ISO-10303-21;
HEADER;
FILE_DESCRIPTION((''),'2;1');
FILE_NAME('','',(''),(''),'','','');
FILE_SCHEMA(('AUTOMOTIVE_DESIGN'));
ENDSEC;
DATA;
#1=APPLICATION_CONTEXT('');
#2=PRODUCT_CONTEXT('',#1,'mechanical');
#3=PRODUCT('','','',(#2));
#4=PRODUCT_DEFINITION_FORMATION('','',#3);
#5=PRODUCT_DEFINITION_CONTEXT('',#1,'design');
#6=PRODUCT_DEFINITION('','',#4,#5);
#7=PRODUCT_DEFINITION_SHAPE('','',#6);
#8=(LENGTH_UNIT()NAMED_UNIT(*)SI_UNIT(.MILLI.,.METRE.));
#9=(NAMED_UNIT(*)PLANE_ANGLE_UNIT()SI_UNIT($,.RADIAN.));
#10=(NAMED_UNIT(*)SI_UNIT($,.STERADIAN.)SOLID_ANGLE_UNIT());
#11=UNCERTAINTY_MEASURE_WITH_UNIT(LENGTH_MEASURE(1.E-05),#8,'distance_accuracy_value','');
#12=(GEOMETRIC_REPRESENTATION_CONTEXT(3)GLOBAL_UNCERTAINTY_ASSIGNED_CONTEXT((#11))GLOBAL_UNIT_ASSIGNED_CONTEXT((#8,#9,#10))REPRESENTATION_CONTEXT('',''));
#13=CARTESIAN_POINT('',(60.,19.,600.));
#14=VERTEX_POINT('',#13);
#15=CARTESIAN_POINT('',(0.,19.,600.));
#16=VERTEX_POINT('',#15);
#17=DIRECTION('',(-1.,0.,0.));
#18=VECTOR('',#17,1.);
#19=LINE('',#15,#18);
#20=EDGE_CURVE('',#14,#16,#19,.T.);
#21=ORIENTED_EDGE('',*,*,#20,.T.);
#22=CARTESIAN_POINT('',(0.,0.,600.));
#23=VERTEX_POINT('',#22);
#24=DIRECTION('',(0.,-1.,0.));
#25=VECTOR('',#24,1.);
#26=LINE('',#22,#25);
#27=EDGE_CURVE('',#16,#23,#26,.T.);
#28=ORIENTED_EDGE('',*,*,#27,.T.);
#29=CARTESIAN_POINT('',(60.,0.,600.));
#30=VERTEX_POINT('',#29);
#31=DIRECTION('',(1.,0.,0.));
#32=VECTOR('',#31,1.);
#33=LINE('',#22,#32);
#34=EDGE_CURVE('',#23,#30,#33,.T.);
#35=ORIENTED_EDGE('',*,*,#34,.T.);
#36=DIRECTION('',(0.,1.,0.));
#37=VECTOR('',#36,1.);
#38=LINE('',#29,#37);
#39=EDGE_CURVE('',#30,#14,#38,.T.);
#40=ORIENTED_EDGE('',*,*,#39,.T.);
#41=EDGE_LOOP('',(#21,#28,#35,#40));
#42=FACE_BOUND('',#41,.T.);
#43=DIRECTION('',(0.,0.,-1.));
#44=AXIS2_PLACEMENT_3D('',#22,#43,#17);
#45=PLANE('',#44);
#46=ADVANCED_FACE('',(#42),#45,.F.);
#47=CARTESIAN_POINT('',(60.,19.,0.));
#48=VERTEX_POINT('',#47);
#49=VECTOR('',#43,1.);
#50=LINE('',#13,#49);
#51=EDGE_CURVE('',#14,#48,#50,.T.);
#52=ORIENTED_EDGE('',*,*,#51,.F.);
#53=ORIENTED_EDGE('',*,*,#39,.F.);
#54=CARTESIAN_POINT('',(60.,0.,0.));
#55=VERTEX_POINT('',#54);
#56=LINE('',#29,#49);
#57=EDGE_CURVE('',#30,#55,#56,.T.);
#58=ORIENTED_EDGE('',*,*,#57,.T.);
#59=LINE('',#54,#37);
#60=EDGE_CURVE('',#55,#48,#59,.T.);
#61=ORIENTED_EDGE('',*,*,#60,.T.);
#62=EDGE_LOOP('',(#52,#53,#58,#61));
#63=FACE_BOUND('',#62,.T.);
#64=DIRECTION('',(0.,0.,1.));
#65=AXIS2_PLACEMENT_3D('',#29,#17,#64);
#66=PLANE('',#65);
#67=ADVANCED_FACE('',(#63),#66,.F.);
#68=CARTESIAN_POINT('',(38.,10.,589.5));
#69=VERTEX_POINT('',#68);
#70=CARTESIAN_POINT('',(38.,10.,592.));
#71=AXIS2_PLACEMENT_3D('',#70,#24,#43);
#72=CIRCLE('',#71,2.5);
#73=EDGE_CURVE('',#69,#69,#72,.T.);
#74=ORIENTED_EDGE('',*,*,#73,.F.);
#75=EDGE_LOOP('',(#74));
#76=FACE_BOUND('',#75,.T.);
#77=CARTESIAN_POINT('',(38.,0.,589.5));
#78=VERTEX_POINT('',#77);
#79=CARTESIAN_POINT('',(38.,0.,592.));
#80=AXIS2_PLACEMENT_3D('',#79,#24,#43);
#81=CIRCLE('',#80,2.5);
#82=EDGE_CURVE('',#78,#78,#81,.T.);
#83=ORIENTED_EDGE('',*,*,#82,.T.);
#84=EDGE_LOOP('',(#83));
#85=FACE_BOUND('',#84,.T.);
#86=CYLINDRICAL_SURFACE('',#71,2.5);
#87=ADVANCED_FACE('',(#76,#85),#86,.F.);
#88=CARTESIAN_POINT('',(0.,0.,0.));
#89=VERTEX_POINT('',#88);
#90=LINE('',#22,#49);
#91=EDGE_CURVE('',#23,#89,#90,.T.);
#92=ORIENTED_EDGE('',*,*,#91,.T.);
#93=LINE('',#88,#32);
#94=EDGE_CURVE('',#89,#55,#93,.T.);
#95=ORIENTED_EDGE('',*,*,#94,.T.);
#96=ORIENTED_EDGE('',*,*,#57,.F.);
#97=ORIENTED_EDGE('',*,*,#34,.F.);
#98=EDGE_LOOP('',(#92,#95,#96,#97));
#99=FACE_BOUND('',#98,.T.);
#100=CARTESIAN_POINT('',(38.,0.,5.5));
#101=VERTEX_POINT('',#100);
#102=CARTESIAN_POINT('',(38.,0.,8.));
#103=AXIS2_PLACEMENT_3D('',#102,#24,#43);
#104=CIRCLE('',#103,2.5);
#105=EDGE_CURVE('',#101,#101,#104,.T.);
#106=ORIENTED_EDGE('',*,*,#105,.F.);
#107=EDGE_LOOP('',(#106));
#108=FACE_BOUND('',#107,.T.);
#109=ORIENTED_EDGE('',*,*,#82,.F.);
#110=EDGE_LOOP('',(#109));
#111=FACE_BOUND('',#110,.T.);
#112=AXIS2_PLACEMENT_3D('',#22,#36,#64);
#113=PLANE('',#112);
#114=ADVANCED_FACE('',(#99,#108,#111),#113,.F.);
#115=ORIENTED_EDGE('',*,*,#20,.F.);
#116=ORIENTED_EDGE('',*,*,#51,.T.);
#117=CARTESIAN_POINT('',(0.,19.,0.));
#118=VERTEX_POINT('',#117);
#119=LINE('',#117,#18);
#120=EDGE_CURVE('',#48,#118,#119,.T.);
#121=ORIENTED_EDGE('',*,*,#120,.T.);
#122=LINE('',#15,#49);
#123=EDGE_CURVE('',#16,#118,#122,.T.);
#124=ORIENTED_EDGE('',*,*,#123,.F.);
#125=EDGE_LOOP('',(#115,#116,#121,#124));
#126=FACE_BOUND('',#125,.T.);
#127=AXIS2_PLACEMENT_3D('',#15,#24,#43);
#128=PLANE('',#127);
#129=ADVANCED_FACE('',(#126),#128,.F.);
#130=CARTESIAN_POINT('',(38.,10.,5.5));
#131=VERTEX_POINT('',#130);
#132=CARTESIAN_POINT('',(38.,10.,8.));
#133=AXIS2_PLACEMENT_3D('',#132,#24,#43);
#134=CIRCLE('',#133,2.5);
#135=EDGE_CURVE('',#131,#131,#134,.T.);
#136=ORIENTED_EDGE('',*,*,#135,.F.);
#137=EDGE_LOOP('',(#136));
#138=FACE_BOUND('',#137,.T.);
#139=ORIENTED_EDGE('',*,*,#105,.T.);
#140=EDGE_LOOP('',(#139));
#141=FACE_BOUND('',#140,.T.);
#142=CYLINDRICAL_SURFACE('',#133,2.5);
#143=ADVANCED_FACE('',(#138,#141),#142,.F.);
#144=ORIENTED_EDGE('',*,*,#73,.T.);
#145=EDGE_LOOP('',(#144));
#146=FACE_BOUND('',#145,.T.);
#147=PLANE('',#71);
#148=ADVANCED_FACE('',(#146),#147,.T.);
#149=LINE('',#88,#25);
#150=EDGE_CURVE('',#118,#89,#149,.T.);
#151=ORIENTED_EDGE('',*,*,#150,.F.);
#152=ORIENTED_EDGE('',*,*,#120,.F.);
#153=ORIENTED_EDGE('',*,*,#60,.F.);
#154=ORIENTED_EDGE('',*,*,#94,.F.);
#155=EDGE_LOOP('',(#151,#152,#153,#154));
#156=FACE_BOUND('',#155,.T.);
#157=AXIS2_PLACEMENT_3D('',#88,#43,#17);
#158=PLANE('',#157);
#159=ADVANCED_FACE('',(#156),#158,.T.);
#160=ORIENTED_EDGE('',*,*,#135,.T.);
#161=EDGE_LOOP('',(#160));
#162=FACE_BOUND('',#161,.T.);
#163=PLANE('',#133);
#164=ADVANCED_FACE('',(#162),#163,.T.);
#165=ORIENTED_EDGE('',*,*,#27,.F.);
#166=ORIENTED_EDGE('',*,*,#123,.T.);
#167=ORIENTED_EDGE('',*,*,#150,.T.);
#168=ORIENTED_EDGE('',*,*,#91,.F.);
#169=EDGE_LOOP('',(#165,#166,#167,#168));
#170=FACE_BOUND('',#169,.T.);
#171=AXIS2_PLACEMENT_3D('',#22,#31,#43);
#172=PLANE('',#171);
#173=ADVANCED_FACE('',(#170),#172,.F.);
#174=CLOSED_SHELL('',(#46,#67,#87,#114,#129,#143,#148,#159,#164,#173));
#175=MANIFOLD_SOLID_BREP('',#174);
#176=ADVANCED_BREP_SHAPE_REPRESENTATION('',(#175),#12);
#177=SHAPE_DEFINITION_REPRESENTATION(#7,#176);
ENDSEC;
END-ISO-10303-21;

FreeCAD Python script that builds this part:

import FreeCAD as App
import Part
import Sketcher

V = App.Vector
Q = App.Units.Quantity


def add_polygon(sketch, points):
    """Adds a closed chain of lines whose ends are joined by coincident constraints."""
    first, n = sketch.GeometryCount, len(points)
    for a, b in zip(points, points[1:] + points[:1]):
        sketch.addGeometry(Part.LineSegment(App.Vector(*a, 0), App.Vector(*b, 0)), False)
    for i in range(n):
        sketch.addConstraint(Sketcher.Constraint("Coincident", first + i, 2, first + (i + 1) % n, 1))

doc = App.newDocument("Part")
body = doc.addObject("PartDesign::Body", "Body")

# Sketch on XY plane
sketch1 = doc.addObject("Sketcher::SketchObject", "Sketch")
body.addObject(sketch1)
sketch1.AttachmentSupport = (doc.XY_Plane, [""])
sketch1.MapMode = "FlatFace"
add_polygon(sketch1, [(0, 19), (0, 0), (60, 0), (60, 19)])  # lines 0-3
sketch1.addConstraint([
    Sketcher.Constraint("Vertical", 0),
    Sketcher.Constraint("Horizontal", 1),
    Sketcher.Constraint("Vertical", 2),
    Sketcher.Constraint("Horizontal", 3),
    Sketcher.Constraint("Coincident", 0, 2, -1, 1),
    Sketcher.Constraint("DistanceX", 1, 1, 1, 2, Q("60 mm")),
    Sketcher.Constraint("DistanceY", 0, 2, 0, 1, Q("19 mm")),
])
pad1 = doc.addObject("PartDesign::Pad", "Pad")
body.addObject(pad1)
pad1.Profile = sketch1
pad1.Length = 600

# Sketch on XZ plane
sketch2 = doc.addObject("Sketcher::SketchObject", "Sketch001")
body.addObject(sketch2)
sketch2.AttachmentSupport = (doc.XZ_Plane, [""])
sketch2.MapMode = "FlatFace"
sketch2.addGeometry([
    Part.Circle(V(38, 8, 0), V(0, 0, 1), 2.5),
    Part.Circle(V(38, 592, 0), V(0, 0, 1), 2.5),
], False)
sketch2.addConstraint([
    Sketcher.Constraint("Equal", 0, 1),
    Sketcher.Constraint("Vertical", 0, 3, 1, 3),
    Sketcher.Constraint("Diameter", 0, Q("5 mm")),
    Sketcher.Constraint("DistanceX", -1, 1, 0, 3, Q("38 mm")),
    Sketcher.Constraint("DistanceY", -1, 1, 0, 3, Q("8 mm")),
    Sketcher.Constraint("DistanceY", -1, 1, 1, 3, Q("592 mm")),
])
pocket1 = doc.addObject("PartDesign::Pocket", "Pocket")
body.addObject(pocket1)
pocket1.Profile = sketch2
pocket1.Length = 10

doc.recompute()
